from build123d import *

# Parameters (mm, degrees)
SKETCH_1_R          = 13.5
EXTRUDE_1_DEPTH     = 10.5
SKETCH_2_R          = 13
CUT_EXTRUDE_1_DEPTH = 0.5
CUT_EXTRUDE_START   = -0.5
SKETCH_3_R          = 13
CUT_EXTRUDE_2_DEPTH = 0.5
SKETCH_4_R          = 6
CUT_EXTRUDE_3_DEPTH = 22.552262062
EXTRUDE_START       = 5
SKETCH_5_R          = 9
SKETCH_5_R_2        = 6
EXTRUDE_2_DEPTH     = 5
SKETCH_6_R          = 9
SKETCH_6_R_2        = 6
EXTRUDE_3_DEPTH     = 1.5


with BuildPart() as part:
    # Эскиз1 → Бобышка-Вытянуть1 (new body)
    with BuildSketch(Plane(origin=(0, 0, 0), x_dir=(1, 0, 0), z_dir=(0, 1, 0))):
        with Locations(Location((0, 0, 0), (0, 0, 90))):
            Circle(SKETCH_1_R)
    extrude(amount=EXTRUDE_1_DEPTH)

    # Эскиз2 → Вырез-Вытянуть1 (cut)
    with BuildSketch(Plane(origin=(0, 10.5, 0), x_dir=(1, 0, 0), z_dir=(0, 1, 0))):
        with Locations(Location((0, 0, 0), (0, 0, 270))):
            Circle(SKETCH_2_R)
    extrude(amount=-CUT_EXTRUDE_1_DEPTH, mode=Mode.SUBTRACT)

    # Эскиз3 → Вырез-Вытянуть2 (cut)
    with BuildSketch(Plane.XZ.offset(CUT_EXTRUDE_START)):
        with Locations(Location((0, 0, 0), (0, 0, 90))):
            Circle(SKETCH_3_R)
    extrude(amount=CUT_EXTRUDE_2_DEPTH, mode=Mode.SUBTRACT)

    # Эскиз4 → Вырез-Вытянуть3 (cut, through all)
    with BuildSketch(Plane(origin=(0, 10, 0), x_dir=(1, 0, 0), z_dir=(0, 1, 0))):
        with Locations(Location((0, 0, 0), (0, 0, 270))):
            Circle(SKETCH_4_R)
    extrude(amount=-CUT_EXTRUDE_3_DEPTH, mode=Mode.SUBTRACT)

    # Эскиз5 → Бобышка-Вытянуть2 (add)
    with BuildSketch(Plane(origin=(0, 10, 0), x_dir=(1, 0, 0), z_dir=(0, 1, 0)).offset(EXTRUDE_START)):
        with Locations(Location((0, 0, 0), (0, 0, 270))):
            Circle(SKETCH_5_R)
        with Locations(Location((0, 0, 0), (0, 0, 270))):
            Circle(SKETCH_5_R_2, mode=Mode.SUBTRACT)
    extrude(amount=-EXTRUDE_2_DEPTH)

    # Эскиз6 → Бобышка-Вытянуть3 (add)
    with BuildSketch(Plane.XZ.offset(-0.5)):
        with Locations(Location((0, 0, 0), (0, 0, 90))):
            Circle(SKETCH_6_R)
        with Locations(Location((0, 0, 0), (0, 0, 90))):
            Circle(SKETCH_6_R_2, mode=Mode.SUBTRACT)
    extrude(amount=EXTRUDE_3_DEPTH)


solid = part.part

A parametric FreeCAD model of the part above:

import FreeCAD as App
import Part
import Sketcher
from FreeCAD import Vector

doc = App.newDocument("Part")
body = doc.addObject("PartDesign::Body", "Body")

sketch1 = body.newObject("Sketcher::SketchObject", "Sketch")
sketch1.AttachmentSupport = (doc.getObject("XZ_Plane"), [""])
sketch1.MapMode = "FlatFace"
sketch1.addGeometry(Part.Circle(Vector(0, 0, 0), Vector(0, 0, 1), 14), False)
sketch1.addConstraint(Sketcher.Constraint("Coincident", 0, 3, -1, 1))
sketch1.addConstraint(Sketcher.Constraint("Diameter", 0, 27.0))
pad1 = body.newObject("PartDesign::Pad", "Pad")
pad1.Profile = sketch1
pad1.Length = 10.5
pad1.Reversed = True

sketch2 = body.newObject("Sketcher::SketchObject", "Sketch001")
sketch2.AttachmentSupport = (doc.getObject("XZ_Plane"), [""])
sketch2.MapMode = "FlatFace"
sketch2.AttachmentOffset = App.Placement(Vector(0, 0, -10.5), App.Rotation())
sketch2.addGeometry(Part.Circle(Vector(0, 0, 0), Vector(0, 0, 1), 13), False)
sketch2.addConstraint(Sketcher.Constraint("Coincident", 0, 3, -1, 1))
sketch2.addConstraint(Sketcher.Constraint("Diameter", 0, 26.0))
pocket1 = body.newObject("PartDesign::Pocket", "Pocket")
pocket1.Profile = sketch2
pocket1.Length = 0.5
pocket1.Reversed = True

sketch3 = body.newObject("Sketcher::SketchObject", "Sketch002")
sketch3.AttachmentSupport = (doc.getObject("XZ_Plane"), [""])
sketch3.MapMode = "FlatFace"
sketch3.AttachmentOffset = App.Placement(Vector(0, 0, -0.5), App.Rotation())
sketch3.addGeometry(Part.Circle(Vector(0, 0, 0), Vector(0, 0, 1), 13), False)
sketch3.addConstraint(Sketcher.Constraint("Coincident", 0, 3, -1, 1))
sketch3.addConstraint(Sketcher.Constraint("Diameter", 0, 26.0))
pocket2 = body.newObject("PartDesign::Pocket", "Pocket001")
pocket2.Profile = sketch3
pocket2.Length = 0.5
pocket2.Reversed = True

sketch4 = body.newObject("Sketcher::SketchObject", "Sketch003")
sketch4.AttachmentSupport = (doc.getObject("XZ_Plane"), [""])
sketch4.MapMode = "FlatFace"
sketch4.AttachmentOffset = App.Placement(Vector(0, 0, -10), App.Rotation())
sketch4.addGeometry(Part.Circle(Vector(0, 0, 0), Vector(0, 0, 1), 6), False)
sketch4.addConstraint(Sketcher.Constraint("Coincident", 0, 3, -1, 1))
sketch4.addConstraint(Sketcher.Constraint("Diameter", 0, 12.0))
pocket3 = body.newObject("PartDesign::Pocket", "Pocket002")
pocket3.Profile = sketch4
pocket3.Type = "ThroughAll"
pocket3.Reversed = True

sketch5 = body.newObject("Sketcher::SketchObject", "Sketch004")
sketch5.AttachmentSupport = (doc.getObject("XZ_Plane"), [""])
sketch5.MapMode = "FlatFace"
sketch5.AttachmentOffset = App.Placement(Vector(0, 0, -15), App.Rotation())
sketch5.addGeometry(Part.Circle(Vector(0, 0, 0), Vector(0, 0, 1), 9), False)
sketch5.addGeometry(Part.Circle(Vector(0, 0, 0), Vector(0, 0, 1), 6), False)
sketch5.addConstraint(Sketcher.Constraint("Coincident", 0, 3, -1, 1))
sketch5.addConstraint(Sketcher.Constraint("Coincident", 1, 3, -1, 1))
sketch5.addConstraint(Sketcher.Constraint("Diameter", 0, 18.0))
sketch5.addConstraint(Sketcher.Constraint("Diameter", 1, 12.0))
pad2 = body.newObject("PartDesign::Pad", "Pad001")
pad2.Profile = sketch5
pad2.Length = 5

sketch6 = body.newObject("Sketcher::SketchObject", "Sketch005")
sketch6.AttachmentSupport = (doc.getObject("XZ_Plane"), [""])
sketch6.MapMode = "FlatFace"
sketch6.AttachmentOffset = App.Placement(Vector(0, 0, -0.5), App.Rotation())
sketch6.addGeometry(Part.Circle(Vector(0, 0, 0), Vector(0, 0, 1), 9), False)
sketch6.addGeometry(Part.Circle(Vector(0, 0, 0), Vector(0, 0, 1), 6), False)
sketch6.addConstraint(Sketcher.Constraint("Coincident", 0, 3, -1, 1))
sketch6.addConstraint(Sketcher.Constraint("Coincident", 1, 3, -1, 1))
sketch6.addConstraint(Sketcher.Constraint("Diameter", 0, 18.0))
sketch6.addConstraint(Sketcher.Constraint("Diameter", 1, 12.0))
pad3 = body.newObject("PartDesign::Pad", "Pad002")
pad3.Profile = sketch6
pad3.Length = 1.5

doc.recompute()
